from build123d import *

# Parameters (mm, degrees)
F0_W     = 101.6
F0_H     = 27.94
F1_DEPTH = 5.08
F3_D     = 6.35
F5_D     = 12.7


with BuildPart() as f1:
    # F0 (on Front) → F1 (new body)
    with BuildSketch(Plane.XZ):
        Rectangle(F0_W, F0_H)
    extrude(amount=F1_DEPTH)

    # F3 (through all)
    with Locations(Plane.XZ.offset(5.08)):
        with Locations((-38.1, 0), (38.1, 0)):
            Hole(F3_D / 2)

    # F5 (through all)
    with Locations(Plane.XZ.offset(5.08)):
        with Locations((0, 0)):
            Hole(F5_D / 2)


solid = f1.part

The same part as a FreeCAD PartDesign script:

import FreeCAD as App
import Part
import Sketcher

V = App.Vector
Q = App.Units.Quantity

doc = App.newDocument("Part")
body = doc.addObject("PartDesign::Body", "Body")

# Sketch on XZ plane
sketch1 = doc.addObject("Sketcher::SketchObject", "Sketch")
body.addObject(sketch1)
sketch1.AttachmentSupport = (doc.XZ_Plane, [""])
sketch1.MapMode = "FlatFace"
sketch1.addGeometry(Part.LineSegment(V(-50.8, 13.97, 0), V(-50.8, -13.97, 0)), False)
sketch1.addGeometry(Part.LineSegment(V(-50.8, -13.97, 0), V(50.8, -13.97, 0)), False)
sketch1.addGeometry(Part.LineSegment(V(50.8, -13.97, 0), V(50.8, 13.97, 0)), False)
sketch1.addGeometry(Part.LineSegment(V(50.8, 13.97, 0), V(-50.8, 13.97, 0)), False)
sketch1.addConstraint(Sketcher.Constraint("Coincident", 0, 2, 1, 1))
sketch1.addConstraint(Sketcher.Constraint("Coincident", 1, 2, 2, 1))
sketch1.addConstraint(Sketcher.Constraint("Coincident", 2, 2, 3, 1))
sketch1.addConstraint(Sketcher.Constraint("Coincident", 3, 2, 0, 1))
sketch1.addConstraint(Sketcher.Constraint("Vertical", 0))
sketch1.addConstraint(Sketcher.Constraint("Horizontal", 1))
sketch1.addConstraint(Sketcher.Constraint("Vertical", 2))
sketch1.addConstraint(Sketcher.Constraint("Horizontal", 3))
sketch1.addConstraint(Sketcher.Constraint("Symmetric", 0, 2, 2, 2, -1, 1))
sketch1.addConstraint(Sketcher.Constraint("DistanceX", 1, 1, 1, 2, Q("4 in")))
sketch1.addConstraint(Sketcher.Constraint("DistanceY", 0, 2, 0, 1, Q("1.1 in")))
pad1 = doc.addObject("PartDesign::Pad", "Pad")
body.addObject(pad1)
pad1.Profile = sketch1
pad1.Length = Q("0.2 in")

# Sketch on XZ plane
sketch2 = doc.addObject("Sketcher::SketchObject", "Sketch001")
body.addObject(sketch2)
sketch2.AttachmentSupport = (doc.XZ_Plane, [""])
sketch2.MapMode = "FlatFace"
sketch2.AttachmentOffset = App.Placement(V(0, 0, 0.2 * 25.4), App.Rotation())
sketch2.addGeometry(Part.Circle(V(-38.1, 0, 0), V(0, 0, 1), 3.175), False)
sketch2.addGeometry(Part.Circle(V(38.1, 0, 0), V(0, 0, 1), 3.175), False)
sketch2.addConstraint(Sketcher.Constraint("Equal", 0, 1))
sketch2.addConstraint(Sketcher.Constraint("Symmetric", 0, 3, 1, 3, -1, 1))
sketch2.addConstraint(Sketcher.Constraint("PointOnObject", 0, 3, -1))
sketch2.addConstraint(Sketcher.Constraint("Diameter", 0, Q("0.25 in")))
sketch2.addConstraint(Sketcher.Constraint("DistanceX", 0, 3, 1, 3, Q("3 in")))
doc.recompute()
hole = doc.addObject("PartDesign::Hole", "Hole")
body.addObject(hole)
hole.Profile = sketch2
hole.ThreadType = "None"
hole.Diameter = Q("0.25 in")
hole.DepthType = "ThroughAll"

# Sketch on XZ plane
sketch3 = doc.addObject("Sketcher::SketchObject", "Sketch002")
body.addObject(sketch3)
sketch3.AttachmentSupport = (doc.XZ_Plane, [""])
sketch3.MapMode = "FlatFace"
sketch3.AttachmentOffset = App.Placement(V(0, 0, 0.2 * 25.4), App.Rotation())
sketch3.addGeometry(Part.Circle(V(0, 0, 0), V(0, 0, 1), 6.35), False)
sketch3.addConstraint(Sketcher.Constraint("Coincident", 0, 3, -1, 1))
sketch3.addConstraint(Sketcher.Constraint("Diameter", 0, Q("0.5 in")))
doc.recompute()
hole2 = doc.addObject("PartDesign::Hole", "Hole001")
body.addObject(hole2)
hole2.Profile = sketch3
hole2.ThreadType = "None"
hole2.Diameter = Q("0.5 in")
hole2.DepthType = "ThroughAll"

doc.recompute()
